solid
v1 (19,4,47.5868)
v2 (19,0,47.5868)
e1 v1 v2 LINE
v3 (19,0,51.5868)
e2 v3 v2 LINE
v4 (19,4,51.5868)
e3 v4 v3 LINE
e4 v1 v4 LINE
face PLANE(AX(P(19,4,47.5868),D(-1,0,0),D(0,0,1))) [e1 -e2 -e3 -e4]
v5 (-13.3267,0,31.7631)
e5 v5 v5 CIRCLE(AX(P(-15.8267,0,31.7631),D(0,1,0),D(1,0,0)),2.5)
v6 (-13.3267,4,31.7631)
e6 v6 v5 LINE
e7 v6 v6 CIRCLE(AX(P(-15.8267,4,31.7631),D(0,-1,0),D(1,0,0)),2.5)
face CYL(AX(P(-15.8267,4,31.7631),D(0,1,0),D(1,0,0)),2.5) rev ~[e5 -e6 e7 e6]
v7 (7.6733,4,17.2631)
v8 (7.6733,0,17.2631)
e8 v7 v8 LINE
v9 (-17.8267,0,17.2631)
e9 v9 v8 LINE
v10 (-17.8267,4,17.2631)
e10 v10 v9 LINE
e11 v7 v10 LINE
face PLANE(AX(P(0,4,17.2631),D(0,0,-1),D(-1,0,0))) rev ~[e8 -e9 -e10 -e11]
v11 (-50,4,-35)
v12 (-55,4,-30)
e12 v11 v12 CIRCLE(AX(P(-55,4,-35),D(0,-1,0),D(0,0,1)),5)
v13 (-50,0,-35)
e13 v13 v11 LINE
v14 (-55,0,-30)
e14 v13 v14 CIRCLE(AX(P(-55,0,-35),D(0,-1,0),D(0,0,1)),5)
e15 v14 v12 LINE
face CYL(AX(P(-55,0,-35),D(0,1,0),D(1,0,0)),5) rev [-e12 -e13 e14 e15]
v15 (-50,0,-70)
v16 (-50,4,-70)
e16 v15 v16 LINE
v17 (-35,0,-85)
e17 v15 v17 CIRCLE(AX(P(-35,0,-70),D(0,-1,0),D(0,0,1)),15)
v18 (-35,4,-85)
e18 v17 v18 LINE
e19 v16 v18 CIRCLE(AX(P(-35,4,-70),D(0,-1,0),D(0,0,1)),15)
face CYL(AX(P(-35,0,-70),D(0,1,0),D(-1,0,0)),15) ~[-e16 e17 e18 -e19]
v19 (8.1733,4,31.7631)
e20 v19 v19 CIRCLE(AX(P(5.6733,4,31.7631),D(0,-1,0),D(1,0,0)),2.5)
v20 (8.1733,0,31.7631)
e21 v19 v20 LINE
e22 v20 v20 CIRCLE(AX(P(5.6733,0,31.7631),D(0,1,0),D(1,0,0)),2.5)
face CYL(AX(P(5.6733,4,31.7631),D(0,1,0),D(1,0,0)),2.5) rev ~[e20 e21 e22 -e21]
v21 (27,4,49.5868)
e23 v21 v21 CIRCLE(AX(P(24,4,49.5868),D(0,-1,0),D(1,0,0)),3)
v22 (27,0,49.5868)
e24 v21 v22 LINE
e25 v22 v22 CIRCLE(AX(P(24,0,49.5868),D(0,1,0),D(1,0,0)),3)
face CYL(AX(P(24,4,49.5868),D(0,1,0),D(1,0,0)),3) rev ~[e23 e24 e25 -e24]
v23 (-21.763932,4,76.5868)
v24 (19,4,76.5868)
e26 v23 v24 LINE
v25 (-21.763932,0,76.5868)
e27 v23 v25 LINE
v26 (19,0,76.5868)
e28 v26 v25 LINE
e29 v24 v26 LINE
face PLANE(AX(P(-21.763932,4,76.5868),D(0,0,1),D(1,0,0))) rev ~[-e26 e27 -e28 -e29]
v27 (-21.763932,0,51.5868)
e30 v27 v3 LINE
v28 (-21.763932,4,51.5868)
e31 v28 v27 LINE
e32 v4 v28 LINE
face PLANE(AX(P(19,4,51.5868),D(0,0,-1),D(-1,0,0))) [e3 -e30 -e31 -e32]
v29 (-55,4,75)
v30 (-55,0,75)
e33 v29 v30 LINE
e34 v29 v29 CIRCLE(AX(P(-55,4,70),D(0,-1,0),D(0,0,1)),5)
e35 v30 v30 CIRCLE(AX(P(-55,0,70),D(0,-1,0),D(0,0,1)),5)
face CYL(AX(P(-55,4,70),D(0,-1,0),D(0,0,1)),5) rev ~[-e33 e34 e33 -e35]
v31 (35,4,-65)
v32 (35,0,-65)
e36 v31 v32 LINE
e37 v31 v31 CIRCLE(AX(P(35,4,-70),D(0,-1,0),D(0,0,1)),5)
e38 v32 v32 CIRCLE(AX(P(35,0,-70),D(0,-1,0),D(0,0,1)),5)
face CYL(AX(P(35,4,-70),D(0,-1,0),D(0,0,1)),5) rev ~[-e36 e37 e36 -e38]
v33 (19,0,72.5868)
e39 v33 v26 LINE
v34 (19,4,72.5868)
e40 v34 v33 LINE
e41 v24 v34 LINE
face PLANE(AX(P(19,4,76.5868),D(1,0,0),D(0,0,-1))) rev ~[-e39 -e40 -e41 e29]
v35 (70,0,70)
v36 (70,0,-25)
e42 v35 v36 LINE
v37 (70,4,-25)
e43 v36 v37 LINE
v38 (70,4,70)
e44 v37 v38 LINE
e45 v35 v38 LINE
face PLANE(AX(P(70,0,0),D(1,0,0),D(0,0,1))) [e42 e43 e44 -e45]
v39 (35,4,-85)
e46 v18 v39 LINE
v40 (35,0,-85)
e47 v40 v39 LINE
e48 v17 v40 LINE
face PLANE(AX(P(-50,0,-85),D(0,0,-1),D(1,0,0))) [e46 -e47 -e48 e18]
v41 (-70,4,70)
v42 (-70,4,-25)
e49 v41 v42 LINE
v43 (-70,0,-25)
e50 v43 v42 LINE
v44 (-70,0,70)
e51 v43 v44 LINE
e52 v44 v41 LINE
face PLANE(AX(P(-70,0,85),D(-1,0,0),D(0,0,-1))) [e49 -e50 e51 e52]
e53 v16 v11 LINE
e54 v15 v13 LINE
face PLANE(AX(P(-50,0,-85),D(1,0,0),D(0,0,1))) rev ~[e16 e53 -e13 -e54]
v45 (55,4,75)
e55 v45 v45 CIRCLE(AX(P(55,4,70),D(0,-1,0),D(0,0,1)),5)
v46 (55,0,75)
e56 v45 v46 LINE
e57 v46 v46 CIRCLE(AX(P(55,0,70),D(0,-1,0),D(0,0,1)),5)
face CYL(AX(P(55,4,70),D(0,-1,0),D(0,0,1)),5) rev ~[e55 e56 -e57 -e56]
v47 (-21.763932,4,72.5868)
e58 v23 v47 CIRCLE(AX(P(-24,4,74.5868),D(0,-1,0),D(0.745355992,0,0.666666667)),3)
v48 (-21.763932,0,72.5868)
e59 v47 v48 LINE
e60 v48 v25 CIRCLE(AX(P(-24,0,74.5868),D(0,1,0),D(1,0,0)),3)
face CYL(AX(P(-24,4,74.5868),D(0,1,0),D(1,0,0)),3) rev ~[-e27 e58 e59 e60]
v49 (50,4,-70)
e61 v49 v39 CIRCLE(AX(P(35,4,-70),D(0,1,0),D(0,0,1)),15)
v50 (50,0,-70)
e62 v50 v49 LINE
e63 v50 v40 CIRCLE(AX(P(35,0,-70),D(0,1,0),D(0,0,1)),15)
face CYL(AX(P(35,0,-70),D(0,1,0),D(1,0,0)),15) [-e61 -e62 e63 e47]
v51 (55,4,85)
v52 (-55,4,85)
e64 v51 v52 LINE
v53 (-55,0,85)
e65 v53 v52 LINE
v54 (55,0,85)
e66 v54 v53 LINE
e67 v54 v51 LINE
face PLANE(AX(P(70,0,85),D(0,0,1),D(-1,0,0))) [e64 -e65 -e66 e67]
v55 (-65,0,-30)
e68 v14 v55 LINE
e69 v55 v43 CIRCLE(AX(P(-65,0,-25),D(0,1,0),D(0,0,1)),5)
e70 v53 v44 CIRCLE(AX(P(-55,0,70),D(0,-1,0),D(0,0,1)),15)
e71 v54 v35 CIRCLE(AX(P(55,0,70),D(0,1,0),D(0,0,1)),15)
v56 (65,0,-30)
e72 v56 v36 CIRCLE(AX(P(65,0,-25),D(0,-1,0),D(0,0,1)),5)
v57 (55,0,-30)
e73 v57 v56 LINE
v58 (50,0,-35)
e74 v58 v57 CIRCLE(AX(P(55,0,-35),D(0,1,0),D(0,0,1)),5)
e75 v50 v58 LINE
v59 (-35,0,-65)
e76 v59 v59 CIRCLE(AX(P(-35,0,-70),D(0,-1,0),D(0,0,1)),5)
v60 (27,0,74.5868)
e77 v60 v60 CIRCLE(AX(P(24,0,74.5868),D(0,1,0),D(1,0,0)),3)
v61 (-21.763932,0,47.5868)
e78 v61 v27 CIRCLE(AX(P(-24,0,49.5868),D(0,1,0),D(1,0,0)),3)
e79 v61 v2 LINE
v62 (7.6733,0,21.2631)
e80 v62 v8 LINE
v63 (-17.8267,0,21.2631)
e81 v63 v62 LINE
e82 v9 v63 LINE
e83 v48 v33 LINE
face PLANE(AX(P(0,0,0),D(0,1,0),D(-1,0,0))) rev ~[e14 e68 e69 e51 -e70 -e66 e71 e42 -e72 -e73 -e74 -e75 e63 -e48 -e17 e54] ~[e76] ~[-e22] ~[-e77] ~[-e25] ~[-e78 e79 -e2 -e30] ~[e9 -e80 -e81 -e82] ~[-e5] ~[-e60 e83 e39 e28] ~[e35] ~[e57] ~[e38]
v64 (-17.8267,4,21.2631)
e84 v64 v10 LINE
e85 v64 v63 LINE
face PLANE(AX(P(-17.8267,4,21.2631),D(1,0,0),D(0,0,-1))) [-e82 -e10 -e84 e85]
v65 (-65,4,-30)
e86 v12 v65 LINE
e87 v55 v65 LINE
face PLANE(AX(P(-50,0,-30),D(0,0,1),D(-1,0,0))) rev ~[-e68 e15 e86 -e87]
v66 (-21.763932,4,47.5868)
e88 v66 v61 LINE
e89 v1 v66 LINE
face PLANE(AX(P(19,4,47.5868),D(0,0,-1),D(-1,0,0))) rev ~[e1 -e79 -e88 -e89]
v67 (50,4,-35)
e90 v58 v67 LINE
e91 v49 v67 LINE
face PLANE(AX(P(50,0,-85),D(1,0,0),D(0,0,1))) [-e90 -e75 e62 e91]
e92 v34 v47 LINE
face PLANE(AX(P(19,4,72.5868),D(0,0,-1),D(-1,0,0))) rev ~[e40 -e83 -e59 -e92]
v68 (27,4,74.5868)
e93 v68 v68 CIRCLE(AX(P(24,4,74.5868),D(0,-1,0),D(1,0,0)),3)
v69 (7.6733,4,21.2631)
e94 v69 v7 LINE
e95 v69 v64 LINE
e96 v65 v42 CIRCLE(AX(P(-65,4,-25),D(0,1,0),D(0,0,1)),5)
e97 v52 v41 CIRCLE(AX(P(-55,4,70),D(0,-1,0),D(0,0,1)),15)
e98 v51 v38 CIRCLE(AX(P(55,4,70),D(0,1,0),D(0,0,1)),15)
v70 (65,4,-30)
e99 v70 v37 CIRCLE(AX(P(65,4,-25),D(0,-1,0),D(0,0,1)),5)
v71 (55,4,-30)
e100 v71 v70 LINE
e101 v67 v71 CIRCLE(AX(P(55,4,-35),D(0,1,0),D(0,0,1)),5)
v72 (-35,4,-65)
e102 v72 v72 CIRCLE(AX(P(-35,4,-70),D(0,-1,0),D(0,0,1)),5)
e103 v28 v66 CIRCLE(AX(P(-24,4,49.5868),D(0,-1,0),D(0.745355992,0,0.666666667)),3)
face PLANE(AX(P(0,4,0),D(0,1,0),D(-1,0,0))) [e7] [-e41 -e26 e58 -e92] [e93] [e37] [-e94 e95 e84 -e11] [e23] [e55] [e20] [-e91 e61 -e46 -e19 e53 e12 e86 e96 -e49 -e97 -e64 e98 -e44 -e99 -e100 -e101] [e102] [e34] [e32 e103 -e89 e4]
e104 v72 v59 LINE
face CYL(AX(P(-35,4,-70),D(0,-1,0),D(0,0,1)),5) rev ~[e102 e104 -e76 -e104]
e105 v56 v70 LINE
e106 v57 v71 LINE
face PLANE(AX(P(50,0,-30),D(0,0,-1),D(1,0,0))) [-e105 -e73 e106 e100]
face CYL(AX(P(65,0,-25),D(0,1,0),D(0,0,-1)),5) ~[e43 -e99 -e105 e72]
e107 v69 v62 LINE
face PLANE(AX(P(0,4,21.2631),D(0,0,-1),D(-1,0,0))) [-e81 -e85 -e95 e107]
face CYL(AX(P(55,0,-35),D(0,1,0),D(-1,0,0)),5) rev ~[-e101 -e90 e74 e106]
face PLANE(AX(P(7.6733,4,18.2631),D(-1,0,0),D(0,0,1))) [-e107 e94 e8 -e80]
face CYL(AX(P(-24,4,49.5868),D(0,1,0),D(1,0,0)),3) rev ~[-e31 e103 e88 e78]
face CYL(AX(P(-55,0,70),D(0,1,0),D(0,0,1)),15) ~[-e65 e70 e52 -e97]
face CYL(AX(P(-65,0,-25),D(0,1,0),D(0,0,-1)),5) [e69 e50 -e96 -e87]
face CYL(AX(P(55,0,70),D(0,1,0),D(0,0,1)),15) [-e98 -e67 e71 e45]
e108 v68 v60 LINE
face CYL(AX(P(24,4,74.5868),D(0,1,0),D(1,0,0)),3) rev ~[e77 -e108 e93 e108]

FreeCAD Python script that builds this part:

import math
import FreeCAD as App
import Part
import Sketcher


def edges_at(feature, points):
    """Names of the edges that pass closest to the given points."""
    edges = feature.Shape.Edges
    near = lambda p: min(range(len(edges)), key=lambda i: edges[i].distToShape(Part.Vertex(*p))[0])
    return sorted({f"Edge{near(p) + 1}" for p in points})


def add_polygon(sketch, points):
    """Adds a closed chain of lines whose ends are joined by coincident constraints."""
    first, n = sketch.GeometryCount, len(points)
    for a, b in zip(points, points[1:] + points[:1]):
        sketch.addGeometry(Part.LineSegment(App.Vector(*a, 0), App.Vector(*b, 0)), False)
    for i in range(n):
        sketch.addConstraint(Sketcher.Constraint("Coincident", first + i, 2, first + (i + 1) % n, 1))

doc = App.newDocument("Part")
params = doc.addObject("Spreadsheet::Sheet", "Params")
for row, (alias, value) in enumerate([
    ("sketch1_width", "140 mm"),
    ("sketch1_width2", "20 mm"),
    ("sketch1_height", "55 mm"),
    ("pad1_length", "4 mm"),
    ("fillet_radius", "15 mm"),
    ("fillet2_radius", "15 mm"),
    ("sketch2_diameter", "10 mm"),
    ("hole_diameter", "10 mm"),
    ("hole_depth", "4 mm"),
    ("fillet3_radius", "5 mm"),
    ("sketch3_diameter", "5 mm"),
    ("sketch3_diameter2", "6 mm"),
    ("sketch3_height", "4 mm"),
    ("sketch3_width", "25.5 mm"),
], start=1):
    params.set(f"A{row}", alias)
    params.set(f"B{row}", "=" + value)
    params.setAlias(f"B{row}", alias)

body = doc.addObject("PartDesign::Body", "Body")

# Sketch on XZ plane
sketch1 = body.newObject("Sketcher::SketchObject", "Sketch")
sketch1.AttachmentSupport = (doc.getObject("XZ_Plane"), [""])
sketch1.MapMode = "FlatFace"
add_polygon(sketch1, [(-70, 85), (70, 85), (70, -30), (50, -30), (50, -85), (-50, -85), (-50, -30), (-70, -30)])  # lines 0-7
sketch1.addConstraint(Sketcher.Constraint("Horizontal", 0))
sketch1.addConstraint(Sketcher.Constraint("Vertical", 1))
sketch1.addConstraint(Sketcher.Constraint("Horizontal", 2))
sketch1.addConstraint(Sketcher.Constraint("Vertical", 3))
sketch1.addConstraint(Sketcher.Constraint("Horizontal", 4))
sketch1.addConstraint(Sketcher.Constraint("Vertical", 5))
sketch1.addConstraint(Sketcher.Constraint("Horizontal", 6))
sketch1.addConstraint(Sketcher.Constraint("Vertical", 7))
sketch1.addConstraint(Sketcher.Constraint("Symmetric", 2, 2, 5, 2, -2))
sketch1.addConstraint(Sketcher.Constraint("Equal", 2, 6))
sketch1.addConstraint(Sketcher.Constraint("DistanceX", 0, 1, 0, 2, 140.0))
sketch1.addConstraint(Sketcher.Constraint("DistanceX", 2, 2, 2, 1, 20.0))
sketch1.addConstraint(Sketcher.Constraint("DistanceY", 3, 2, 3, 1, 55.0))
sketch1.addConstraint(Sketcher.Constraint("DistanceY", 3, 2, 0, 2, 170.0))
sketch1.addConstraint(Sketcher.Constraint("DistanceY", -1, 1, 0, 2, 85.0))
sketch1.setExpression("Constraints[18]", "Params.sketch1_width")
sketch1.setExpression("Constraints[19]", "Params.sketch1_width2")
sketch1.setExpression("Constraints[20]", "Params.sketch1_height")
pad1 = body.newObject("PartDesign::Pad", "Pad")
pad1.Profile = sketch1
pad1.setExpression("Length", "Params.pad1_length")
pad1.Reversed = True
doc.recompute()

fillet = body.newObject("PartDesign::Fillet", "Fillet")
fillet.Base = (pad1, edges_at(pad1, [(-70, 2, 85), (70, 2, 85)]))
fillet.setExpression("Radius", "Params.fillet_radius")
doc.recompute()

fillet2 = body.newObject("PartDesign::Fillet", "Fillet001")
fillet2.Base = (fillet, edges_at(fillet, [(-50, 2, -85), (50, 2, -85)]))
fillet2.setExpression("Radius", "Params.fillet2_radius")

# Sketch on XZ plane
sketch2 = body.newObject("Sketcher::SketchObject", "Sketch001")
sketch2.AttachmentSupport = (doc.getObject("XZ_Plane"), [""])
sketch2.MapMode = "FlatFace"
sketch2.AttachmentOffset = App.Placement(App.Vector(0, 0, -4), App.Rotation())
sketch2.addGeometry(Part.Circle(App.Vector(55, 70, 0), App.Vector(0, 0, 1), 5), False)
sketch2.addGeometry(Part.Circle(App.Vector(-55, 70, 0), App.Vector(0, 0, 1), 5), False)
sketch2.addGeometry(Part.Circle(App.Vector(35, -70, 0), App.Vector(0, 0, 1), 5), False)
sketch2.addGeometry(Part.Circle(App.Vector(-35, -70, 0), App.Vector(0, 0, 1), 5), False)
sketch2.addConstraint(Sketcher.Constraint("Equal", 0, 1))
sketch2.addConstraint(Sketcher.Constraint("Equal", 1, 2))
sketch2.addConstraint(Sketcher.Constraint("Equal", 2, 3))
sketch2.addConstraint(Sketcher.Constraint("Symmetric", 0, 3, 1, 3, -2))
sketch2.addConstraint(Sketcher.Constraint("Symmetric", 2, 3, 3, 3, -2))
sketch2.addConstraint(Sketcher.Constraint("Diameter", 0, 10.0))
sketch2.addConstraint(Sketcher.Constraint("DistanceX", -1, 1, 0, 3, 55.0))
sketch2.addConstraint(Sketcher.Constraint("DistanceY", -1, 1, 0, 3, 70.0))
sketch2.addConstraint(Sketcher.Constraint("DistanceX", -1, 1, 2, 3, 35.0))
sketch2.addConstraint(Sketcher.Constraint("DistanceY", 2, 3, -1, 1, 70.0))
sketch2.setExpression("Constraints[5]", "Params.sketch2_diameter")
doc.recompute()
hole = body.newObject("PartDesign::Hole", "Hole")
hole.Profile = sketch2
hole.ThreadType = "None"
hole.setExpression("Diameter", "Params.hole_diameter")
hole.DepthType = "Dimension"
hole.setExpression("Depth", "Params.hole_depth")
hole.DrillPoint = "Flat"
hole.Reversed = True
doc.recompute()

fillet3 = body.newObject("PartDesign::Fillet", "Fillet002")
fillet3.Base = (hole, edges_at(hole, [
    (-50, 2, -30),
    (-70, 2, -30),
    (70, 2, -30),
    (50, 2, -30),
]))
fillet3.setExpression("Radius", "Params.fillet3_radius")

# Sketch on XZ plane
sketch3 = body.newObject("Sketcher::SketchObject", "Sketch002")
sketch3.AttachmentSupport = (doc.getObject("XZ_Plane"), [""])
sketch3.MapMode = "FlatFace"
sketch3.AttachmentOffset = App.Placement(App.Vector(0, 0, -4), App.Rotation())
add_polygon(sketch3, [(-17.8, 21.3), (7.7, 21.3), (7.7, 17.3), (-17.8, 17.3)])  # lines 0-3
sketch3.addGeometry(Part.Circle(App.Vector(5.7, 31.8, 0), App.Vector(0, 0, 1), 2.5), False)  # 4
sketch3.addGeometry(Part.Circle(App.Vector(-15.8, 31.8, 0), App.Vector(0, 0, 1), 2.5), False)  # 5
sketch3.addGeometry(Part.ArcOfCircle(Part.Circle(App.Vector(-24, 74.6, 0), App.Vector(0, 0, 1), 3), math.radians(42), math.radians(318)), False)  # 6
sketch3.addGeometry(Part.LineSegment(App.Vector(-21.8, 76.6, 0), App.Vector(19, 76.6, 0)), False)  # 7
sketch3.addGeometry(Part.LineSegment(App.Vector(19, 76.6, 0), App.Vector(19, 72.6, 0)), False)  # 8
sketch3.addGeometry(Part.LineSegment(App.Vector(19, 72.6, 0), App.Vector(-21.8, 72.6, 0)), False)  # 9
sketch3.addGeometry(Part.ArcOfCircle(Part.Circle(App.Vector(-24, 49.6, 0), App.Vector(0, 0, 1), 3), math.radians(42), math.radians(318)), False)  # 10
sketch3.addGeometry(Part.LineSegment(App.Vector(-21.8, 51.6, 0), App.Vector(19, 51.6, 0)), False)  # 11
sketch3.addGeometry(Part.LineSegment(App.Vector(19, 51.6, 0), App.Vector(19, 47.6, 0)), False)  # 12
sketch3.addGeometry(Part.LineSegment(App.Vector(19, 47.6, 0), App.Vector(-21.8, 47.6, 0)), False)  # 13
sketch3.addGeometry(Part.Circle(App.Vector(24, 74.6, 0), App.Vector(0, 0, 1), 3), False)  # 14
sketch3.addGeometry(Part.Circle(App.Vector(24, 49.6, 0), App.Vector(0, 0, 1), 3), False)  # 15
sketch3.addConstraint(Sketcher.Constraint("Coincident", 6, 1, 7, 1))
sketch3.addConstraint(Sketcher.Constraint("Coincident", 7, 2, 8, 1))
sketch3.addConstraint(Sketcher.Constraint("Coincident", 8, 2, 9, 1))
sketch3.addConstraint(Sketcher.Constraint("Coincident", 9, 2, 6, 2))
sketch3.addConstraint(Sketcher.Constraint("Coincident", 10, 1, 11, 1))
sketch3.addConstraint(Sketcher.Constraint("Coincident", 11, 2, 12, 1))
sketch3.addConstraint(Sketcher.Constraint("Coincident", 12, 2, 13, 1))
sketch3.addConstraint(Sketcher.Constraint("Coincident", 13, 2, 10, 2))
sketch3.addConstraint(Sketcher.Constraint("Horizontal", 0))
sketch3.addConstraint(Sketcher.Constraint("Vertical", 1))
sketch3.addConstraint(Sketcher.Constraint("Horizontal", 2))
sketch3.addConstraint(Sketcher.Constraint("Vertical", 3))
sketch3.addConstraint(Sketcher.Constraint("Horizontal", 7))
sketch3.addConstraint(Sketcher.Constraint("Vertical", 8))
sketch3.addConstraint(Sketcher.Constraint("Horizontal", 9))
sketch3.addConstraint(Sketcher.Constraint("Horizontal", 11))
sketch3.addConstraint(Sketcher.Constraint("Vertical", 12))
sketch3.addConstraint(Sketcher.Constraint("Horizontal", 13))
sketch3.addConstraint(Sketcher.Constraint("Equal", 4, 5))
sketch3.addConstraint(Sketcher.Constraint("Equal", 6, 10))
sketch3.addConstraint(Sketcher.Constraint("Equal", 10, 14))
sketch3.addConstraint(Sketcher.Constraint("Equal", 14, 15))
sketch3.addConstraint(Sketcher.Constraint("Symmetric", 6, 3, 14, 3, -2))
sketch3.addConstraint(Sketcher.Constraint("Symmetric", 10, 3, 15, 3, -2))
sketch3.addConstraint(Sketcher.Constraint("Horizontal", 4, 3, 5, 3))
sketch3.addConstraint(Sketcher.Constraint("Vertical", 6, 3, 10, 3))
sketch3.addConstraint(Sketcher.Constraint("Vertical", 6, 1, 9, 2))
sketch3.addConstraint(Sketcher.Constraint("Vertical", 9, 2, 10, 1))
sketch3.addConstraint(Sketcher.Constraint("Vertical", 8, 2, 11, 2))
sketch3.addConstraint(Sketcher.Constraint("Vertical", 10, 1, 13, 2))
sketch3.addConstraint(Sketcher.Constraint("Equal", 3, 8))
sketch3.addConstraint(Sketcher.Constraint("Diameter", 4, 5.0))
sketch3.addConstraint(Sketcher.Constraint("Diameter", 14, 6.0))
sketch3.addConstraint(Sketcher.Constraint("DistanceY", 1, 2, 1, 1, 4.0))
sketch3.addConstraint(Sketcher.Constraint("DistanceX", 0, 1, 0, 2, 25.5))
sketch3.addConstraint(Sketcher.Constraint("DistanceX", 4, 3, 0, 2, 2.0))
sketch3.addConstraint(Sketcher.Constraint("DistanceX", 2, 2, 5, 3, 2.0))
sketch3.addConstraint(Sketcher.Constraint("DistanceX", 7, 2, 14, 3, 5.0))
sketch3.addConstraint(Sketcher.Constraint("DistanceX", 6, 3, -1, 1, 24.0))
sketch3.addConstraint(Sketcher.Constraint("DistanceY", 10, 3, 6, 3, 25.0))
sketch3.addConstraint(Sketcher.Constraint("DistanceY", 0, 2, 4, 3, 10.5))
sketch3.addConstraint(Sketcher.Constraint("DistanceY", -1, 1, 4, 3, 31.763))
sketch3.addConstraint(Sketcher.Constraint("DistanceX", -1, 1, 4, 3, 5.6733))
sketch3.addConstraint(Sketcher.Constraint("DistanceY", -1, 1, 6, 3, 74.5868))
sketch3.setExpression("Constraints[35]", "Params.sketch3_diameter")
sketch3.setExpression("Constraints[36]", "Params.sketch3_diameter2")
sketch3.setExpression("Constraints[37]", "Params.sketch3_height")
sketch3.setExpression("Constraints[38]", "Params.sketch3_width")
pocket1 = body.newObject("PartDesign::Pocket", "Pocket")
pocket1.Profile = sketch3
pocket1.Type = "UpToFirst"
pocket1.Reversed = True

doc.recompute()
